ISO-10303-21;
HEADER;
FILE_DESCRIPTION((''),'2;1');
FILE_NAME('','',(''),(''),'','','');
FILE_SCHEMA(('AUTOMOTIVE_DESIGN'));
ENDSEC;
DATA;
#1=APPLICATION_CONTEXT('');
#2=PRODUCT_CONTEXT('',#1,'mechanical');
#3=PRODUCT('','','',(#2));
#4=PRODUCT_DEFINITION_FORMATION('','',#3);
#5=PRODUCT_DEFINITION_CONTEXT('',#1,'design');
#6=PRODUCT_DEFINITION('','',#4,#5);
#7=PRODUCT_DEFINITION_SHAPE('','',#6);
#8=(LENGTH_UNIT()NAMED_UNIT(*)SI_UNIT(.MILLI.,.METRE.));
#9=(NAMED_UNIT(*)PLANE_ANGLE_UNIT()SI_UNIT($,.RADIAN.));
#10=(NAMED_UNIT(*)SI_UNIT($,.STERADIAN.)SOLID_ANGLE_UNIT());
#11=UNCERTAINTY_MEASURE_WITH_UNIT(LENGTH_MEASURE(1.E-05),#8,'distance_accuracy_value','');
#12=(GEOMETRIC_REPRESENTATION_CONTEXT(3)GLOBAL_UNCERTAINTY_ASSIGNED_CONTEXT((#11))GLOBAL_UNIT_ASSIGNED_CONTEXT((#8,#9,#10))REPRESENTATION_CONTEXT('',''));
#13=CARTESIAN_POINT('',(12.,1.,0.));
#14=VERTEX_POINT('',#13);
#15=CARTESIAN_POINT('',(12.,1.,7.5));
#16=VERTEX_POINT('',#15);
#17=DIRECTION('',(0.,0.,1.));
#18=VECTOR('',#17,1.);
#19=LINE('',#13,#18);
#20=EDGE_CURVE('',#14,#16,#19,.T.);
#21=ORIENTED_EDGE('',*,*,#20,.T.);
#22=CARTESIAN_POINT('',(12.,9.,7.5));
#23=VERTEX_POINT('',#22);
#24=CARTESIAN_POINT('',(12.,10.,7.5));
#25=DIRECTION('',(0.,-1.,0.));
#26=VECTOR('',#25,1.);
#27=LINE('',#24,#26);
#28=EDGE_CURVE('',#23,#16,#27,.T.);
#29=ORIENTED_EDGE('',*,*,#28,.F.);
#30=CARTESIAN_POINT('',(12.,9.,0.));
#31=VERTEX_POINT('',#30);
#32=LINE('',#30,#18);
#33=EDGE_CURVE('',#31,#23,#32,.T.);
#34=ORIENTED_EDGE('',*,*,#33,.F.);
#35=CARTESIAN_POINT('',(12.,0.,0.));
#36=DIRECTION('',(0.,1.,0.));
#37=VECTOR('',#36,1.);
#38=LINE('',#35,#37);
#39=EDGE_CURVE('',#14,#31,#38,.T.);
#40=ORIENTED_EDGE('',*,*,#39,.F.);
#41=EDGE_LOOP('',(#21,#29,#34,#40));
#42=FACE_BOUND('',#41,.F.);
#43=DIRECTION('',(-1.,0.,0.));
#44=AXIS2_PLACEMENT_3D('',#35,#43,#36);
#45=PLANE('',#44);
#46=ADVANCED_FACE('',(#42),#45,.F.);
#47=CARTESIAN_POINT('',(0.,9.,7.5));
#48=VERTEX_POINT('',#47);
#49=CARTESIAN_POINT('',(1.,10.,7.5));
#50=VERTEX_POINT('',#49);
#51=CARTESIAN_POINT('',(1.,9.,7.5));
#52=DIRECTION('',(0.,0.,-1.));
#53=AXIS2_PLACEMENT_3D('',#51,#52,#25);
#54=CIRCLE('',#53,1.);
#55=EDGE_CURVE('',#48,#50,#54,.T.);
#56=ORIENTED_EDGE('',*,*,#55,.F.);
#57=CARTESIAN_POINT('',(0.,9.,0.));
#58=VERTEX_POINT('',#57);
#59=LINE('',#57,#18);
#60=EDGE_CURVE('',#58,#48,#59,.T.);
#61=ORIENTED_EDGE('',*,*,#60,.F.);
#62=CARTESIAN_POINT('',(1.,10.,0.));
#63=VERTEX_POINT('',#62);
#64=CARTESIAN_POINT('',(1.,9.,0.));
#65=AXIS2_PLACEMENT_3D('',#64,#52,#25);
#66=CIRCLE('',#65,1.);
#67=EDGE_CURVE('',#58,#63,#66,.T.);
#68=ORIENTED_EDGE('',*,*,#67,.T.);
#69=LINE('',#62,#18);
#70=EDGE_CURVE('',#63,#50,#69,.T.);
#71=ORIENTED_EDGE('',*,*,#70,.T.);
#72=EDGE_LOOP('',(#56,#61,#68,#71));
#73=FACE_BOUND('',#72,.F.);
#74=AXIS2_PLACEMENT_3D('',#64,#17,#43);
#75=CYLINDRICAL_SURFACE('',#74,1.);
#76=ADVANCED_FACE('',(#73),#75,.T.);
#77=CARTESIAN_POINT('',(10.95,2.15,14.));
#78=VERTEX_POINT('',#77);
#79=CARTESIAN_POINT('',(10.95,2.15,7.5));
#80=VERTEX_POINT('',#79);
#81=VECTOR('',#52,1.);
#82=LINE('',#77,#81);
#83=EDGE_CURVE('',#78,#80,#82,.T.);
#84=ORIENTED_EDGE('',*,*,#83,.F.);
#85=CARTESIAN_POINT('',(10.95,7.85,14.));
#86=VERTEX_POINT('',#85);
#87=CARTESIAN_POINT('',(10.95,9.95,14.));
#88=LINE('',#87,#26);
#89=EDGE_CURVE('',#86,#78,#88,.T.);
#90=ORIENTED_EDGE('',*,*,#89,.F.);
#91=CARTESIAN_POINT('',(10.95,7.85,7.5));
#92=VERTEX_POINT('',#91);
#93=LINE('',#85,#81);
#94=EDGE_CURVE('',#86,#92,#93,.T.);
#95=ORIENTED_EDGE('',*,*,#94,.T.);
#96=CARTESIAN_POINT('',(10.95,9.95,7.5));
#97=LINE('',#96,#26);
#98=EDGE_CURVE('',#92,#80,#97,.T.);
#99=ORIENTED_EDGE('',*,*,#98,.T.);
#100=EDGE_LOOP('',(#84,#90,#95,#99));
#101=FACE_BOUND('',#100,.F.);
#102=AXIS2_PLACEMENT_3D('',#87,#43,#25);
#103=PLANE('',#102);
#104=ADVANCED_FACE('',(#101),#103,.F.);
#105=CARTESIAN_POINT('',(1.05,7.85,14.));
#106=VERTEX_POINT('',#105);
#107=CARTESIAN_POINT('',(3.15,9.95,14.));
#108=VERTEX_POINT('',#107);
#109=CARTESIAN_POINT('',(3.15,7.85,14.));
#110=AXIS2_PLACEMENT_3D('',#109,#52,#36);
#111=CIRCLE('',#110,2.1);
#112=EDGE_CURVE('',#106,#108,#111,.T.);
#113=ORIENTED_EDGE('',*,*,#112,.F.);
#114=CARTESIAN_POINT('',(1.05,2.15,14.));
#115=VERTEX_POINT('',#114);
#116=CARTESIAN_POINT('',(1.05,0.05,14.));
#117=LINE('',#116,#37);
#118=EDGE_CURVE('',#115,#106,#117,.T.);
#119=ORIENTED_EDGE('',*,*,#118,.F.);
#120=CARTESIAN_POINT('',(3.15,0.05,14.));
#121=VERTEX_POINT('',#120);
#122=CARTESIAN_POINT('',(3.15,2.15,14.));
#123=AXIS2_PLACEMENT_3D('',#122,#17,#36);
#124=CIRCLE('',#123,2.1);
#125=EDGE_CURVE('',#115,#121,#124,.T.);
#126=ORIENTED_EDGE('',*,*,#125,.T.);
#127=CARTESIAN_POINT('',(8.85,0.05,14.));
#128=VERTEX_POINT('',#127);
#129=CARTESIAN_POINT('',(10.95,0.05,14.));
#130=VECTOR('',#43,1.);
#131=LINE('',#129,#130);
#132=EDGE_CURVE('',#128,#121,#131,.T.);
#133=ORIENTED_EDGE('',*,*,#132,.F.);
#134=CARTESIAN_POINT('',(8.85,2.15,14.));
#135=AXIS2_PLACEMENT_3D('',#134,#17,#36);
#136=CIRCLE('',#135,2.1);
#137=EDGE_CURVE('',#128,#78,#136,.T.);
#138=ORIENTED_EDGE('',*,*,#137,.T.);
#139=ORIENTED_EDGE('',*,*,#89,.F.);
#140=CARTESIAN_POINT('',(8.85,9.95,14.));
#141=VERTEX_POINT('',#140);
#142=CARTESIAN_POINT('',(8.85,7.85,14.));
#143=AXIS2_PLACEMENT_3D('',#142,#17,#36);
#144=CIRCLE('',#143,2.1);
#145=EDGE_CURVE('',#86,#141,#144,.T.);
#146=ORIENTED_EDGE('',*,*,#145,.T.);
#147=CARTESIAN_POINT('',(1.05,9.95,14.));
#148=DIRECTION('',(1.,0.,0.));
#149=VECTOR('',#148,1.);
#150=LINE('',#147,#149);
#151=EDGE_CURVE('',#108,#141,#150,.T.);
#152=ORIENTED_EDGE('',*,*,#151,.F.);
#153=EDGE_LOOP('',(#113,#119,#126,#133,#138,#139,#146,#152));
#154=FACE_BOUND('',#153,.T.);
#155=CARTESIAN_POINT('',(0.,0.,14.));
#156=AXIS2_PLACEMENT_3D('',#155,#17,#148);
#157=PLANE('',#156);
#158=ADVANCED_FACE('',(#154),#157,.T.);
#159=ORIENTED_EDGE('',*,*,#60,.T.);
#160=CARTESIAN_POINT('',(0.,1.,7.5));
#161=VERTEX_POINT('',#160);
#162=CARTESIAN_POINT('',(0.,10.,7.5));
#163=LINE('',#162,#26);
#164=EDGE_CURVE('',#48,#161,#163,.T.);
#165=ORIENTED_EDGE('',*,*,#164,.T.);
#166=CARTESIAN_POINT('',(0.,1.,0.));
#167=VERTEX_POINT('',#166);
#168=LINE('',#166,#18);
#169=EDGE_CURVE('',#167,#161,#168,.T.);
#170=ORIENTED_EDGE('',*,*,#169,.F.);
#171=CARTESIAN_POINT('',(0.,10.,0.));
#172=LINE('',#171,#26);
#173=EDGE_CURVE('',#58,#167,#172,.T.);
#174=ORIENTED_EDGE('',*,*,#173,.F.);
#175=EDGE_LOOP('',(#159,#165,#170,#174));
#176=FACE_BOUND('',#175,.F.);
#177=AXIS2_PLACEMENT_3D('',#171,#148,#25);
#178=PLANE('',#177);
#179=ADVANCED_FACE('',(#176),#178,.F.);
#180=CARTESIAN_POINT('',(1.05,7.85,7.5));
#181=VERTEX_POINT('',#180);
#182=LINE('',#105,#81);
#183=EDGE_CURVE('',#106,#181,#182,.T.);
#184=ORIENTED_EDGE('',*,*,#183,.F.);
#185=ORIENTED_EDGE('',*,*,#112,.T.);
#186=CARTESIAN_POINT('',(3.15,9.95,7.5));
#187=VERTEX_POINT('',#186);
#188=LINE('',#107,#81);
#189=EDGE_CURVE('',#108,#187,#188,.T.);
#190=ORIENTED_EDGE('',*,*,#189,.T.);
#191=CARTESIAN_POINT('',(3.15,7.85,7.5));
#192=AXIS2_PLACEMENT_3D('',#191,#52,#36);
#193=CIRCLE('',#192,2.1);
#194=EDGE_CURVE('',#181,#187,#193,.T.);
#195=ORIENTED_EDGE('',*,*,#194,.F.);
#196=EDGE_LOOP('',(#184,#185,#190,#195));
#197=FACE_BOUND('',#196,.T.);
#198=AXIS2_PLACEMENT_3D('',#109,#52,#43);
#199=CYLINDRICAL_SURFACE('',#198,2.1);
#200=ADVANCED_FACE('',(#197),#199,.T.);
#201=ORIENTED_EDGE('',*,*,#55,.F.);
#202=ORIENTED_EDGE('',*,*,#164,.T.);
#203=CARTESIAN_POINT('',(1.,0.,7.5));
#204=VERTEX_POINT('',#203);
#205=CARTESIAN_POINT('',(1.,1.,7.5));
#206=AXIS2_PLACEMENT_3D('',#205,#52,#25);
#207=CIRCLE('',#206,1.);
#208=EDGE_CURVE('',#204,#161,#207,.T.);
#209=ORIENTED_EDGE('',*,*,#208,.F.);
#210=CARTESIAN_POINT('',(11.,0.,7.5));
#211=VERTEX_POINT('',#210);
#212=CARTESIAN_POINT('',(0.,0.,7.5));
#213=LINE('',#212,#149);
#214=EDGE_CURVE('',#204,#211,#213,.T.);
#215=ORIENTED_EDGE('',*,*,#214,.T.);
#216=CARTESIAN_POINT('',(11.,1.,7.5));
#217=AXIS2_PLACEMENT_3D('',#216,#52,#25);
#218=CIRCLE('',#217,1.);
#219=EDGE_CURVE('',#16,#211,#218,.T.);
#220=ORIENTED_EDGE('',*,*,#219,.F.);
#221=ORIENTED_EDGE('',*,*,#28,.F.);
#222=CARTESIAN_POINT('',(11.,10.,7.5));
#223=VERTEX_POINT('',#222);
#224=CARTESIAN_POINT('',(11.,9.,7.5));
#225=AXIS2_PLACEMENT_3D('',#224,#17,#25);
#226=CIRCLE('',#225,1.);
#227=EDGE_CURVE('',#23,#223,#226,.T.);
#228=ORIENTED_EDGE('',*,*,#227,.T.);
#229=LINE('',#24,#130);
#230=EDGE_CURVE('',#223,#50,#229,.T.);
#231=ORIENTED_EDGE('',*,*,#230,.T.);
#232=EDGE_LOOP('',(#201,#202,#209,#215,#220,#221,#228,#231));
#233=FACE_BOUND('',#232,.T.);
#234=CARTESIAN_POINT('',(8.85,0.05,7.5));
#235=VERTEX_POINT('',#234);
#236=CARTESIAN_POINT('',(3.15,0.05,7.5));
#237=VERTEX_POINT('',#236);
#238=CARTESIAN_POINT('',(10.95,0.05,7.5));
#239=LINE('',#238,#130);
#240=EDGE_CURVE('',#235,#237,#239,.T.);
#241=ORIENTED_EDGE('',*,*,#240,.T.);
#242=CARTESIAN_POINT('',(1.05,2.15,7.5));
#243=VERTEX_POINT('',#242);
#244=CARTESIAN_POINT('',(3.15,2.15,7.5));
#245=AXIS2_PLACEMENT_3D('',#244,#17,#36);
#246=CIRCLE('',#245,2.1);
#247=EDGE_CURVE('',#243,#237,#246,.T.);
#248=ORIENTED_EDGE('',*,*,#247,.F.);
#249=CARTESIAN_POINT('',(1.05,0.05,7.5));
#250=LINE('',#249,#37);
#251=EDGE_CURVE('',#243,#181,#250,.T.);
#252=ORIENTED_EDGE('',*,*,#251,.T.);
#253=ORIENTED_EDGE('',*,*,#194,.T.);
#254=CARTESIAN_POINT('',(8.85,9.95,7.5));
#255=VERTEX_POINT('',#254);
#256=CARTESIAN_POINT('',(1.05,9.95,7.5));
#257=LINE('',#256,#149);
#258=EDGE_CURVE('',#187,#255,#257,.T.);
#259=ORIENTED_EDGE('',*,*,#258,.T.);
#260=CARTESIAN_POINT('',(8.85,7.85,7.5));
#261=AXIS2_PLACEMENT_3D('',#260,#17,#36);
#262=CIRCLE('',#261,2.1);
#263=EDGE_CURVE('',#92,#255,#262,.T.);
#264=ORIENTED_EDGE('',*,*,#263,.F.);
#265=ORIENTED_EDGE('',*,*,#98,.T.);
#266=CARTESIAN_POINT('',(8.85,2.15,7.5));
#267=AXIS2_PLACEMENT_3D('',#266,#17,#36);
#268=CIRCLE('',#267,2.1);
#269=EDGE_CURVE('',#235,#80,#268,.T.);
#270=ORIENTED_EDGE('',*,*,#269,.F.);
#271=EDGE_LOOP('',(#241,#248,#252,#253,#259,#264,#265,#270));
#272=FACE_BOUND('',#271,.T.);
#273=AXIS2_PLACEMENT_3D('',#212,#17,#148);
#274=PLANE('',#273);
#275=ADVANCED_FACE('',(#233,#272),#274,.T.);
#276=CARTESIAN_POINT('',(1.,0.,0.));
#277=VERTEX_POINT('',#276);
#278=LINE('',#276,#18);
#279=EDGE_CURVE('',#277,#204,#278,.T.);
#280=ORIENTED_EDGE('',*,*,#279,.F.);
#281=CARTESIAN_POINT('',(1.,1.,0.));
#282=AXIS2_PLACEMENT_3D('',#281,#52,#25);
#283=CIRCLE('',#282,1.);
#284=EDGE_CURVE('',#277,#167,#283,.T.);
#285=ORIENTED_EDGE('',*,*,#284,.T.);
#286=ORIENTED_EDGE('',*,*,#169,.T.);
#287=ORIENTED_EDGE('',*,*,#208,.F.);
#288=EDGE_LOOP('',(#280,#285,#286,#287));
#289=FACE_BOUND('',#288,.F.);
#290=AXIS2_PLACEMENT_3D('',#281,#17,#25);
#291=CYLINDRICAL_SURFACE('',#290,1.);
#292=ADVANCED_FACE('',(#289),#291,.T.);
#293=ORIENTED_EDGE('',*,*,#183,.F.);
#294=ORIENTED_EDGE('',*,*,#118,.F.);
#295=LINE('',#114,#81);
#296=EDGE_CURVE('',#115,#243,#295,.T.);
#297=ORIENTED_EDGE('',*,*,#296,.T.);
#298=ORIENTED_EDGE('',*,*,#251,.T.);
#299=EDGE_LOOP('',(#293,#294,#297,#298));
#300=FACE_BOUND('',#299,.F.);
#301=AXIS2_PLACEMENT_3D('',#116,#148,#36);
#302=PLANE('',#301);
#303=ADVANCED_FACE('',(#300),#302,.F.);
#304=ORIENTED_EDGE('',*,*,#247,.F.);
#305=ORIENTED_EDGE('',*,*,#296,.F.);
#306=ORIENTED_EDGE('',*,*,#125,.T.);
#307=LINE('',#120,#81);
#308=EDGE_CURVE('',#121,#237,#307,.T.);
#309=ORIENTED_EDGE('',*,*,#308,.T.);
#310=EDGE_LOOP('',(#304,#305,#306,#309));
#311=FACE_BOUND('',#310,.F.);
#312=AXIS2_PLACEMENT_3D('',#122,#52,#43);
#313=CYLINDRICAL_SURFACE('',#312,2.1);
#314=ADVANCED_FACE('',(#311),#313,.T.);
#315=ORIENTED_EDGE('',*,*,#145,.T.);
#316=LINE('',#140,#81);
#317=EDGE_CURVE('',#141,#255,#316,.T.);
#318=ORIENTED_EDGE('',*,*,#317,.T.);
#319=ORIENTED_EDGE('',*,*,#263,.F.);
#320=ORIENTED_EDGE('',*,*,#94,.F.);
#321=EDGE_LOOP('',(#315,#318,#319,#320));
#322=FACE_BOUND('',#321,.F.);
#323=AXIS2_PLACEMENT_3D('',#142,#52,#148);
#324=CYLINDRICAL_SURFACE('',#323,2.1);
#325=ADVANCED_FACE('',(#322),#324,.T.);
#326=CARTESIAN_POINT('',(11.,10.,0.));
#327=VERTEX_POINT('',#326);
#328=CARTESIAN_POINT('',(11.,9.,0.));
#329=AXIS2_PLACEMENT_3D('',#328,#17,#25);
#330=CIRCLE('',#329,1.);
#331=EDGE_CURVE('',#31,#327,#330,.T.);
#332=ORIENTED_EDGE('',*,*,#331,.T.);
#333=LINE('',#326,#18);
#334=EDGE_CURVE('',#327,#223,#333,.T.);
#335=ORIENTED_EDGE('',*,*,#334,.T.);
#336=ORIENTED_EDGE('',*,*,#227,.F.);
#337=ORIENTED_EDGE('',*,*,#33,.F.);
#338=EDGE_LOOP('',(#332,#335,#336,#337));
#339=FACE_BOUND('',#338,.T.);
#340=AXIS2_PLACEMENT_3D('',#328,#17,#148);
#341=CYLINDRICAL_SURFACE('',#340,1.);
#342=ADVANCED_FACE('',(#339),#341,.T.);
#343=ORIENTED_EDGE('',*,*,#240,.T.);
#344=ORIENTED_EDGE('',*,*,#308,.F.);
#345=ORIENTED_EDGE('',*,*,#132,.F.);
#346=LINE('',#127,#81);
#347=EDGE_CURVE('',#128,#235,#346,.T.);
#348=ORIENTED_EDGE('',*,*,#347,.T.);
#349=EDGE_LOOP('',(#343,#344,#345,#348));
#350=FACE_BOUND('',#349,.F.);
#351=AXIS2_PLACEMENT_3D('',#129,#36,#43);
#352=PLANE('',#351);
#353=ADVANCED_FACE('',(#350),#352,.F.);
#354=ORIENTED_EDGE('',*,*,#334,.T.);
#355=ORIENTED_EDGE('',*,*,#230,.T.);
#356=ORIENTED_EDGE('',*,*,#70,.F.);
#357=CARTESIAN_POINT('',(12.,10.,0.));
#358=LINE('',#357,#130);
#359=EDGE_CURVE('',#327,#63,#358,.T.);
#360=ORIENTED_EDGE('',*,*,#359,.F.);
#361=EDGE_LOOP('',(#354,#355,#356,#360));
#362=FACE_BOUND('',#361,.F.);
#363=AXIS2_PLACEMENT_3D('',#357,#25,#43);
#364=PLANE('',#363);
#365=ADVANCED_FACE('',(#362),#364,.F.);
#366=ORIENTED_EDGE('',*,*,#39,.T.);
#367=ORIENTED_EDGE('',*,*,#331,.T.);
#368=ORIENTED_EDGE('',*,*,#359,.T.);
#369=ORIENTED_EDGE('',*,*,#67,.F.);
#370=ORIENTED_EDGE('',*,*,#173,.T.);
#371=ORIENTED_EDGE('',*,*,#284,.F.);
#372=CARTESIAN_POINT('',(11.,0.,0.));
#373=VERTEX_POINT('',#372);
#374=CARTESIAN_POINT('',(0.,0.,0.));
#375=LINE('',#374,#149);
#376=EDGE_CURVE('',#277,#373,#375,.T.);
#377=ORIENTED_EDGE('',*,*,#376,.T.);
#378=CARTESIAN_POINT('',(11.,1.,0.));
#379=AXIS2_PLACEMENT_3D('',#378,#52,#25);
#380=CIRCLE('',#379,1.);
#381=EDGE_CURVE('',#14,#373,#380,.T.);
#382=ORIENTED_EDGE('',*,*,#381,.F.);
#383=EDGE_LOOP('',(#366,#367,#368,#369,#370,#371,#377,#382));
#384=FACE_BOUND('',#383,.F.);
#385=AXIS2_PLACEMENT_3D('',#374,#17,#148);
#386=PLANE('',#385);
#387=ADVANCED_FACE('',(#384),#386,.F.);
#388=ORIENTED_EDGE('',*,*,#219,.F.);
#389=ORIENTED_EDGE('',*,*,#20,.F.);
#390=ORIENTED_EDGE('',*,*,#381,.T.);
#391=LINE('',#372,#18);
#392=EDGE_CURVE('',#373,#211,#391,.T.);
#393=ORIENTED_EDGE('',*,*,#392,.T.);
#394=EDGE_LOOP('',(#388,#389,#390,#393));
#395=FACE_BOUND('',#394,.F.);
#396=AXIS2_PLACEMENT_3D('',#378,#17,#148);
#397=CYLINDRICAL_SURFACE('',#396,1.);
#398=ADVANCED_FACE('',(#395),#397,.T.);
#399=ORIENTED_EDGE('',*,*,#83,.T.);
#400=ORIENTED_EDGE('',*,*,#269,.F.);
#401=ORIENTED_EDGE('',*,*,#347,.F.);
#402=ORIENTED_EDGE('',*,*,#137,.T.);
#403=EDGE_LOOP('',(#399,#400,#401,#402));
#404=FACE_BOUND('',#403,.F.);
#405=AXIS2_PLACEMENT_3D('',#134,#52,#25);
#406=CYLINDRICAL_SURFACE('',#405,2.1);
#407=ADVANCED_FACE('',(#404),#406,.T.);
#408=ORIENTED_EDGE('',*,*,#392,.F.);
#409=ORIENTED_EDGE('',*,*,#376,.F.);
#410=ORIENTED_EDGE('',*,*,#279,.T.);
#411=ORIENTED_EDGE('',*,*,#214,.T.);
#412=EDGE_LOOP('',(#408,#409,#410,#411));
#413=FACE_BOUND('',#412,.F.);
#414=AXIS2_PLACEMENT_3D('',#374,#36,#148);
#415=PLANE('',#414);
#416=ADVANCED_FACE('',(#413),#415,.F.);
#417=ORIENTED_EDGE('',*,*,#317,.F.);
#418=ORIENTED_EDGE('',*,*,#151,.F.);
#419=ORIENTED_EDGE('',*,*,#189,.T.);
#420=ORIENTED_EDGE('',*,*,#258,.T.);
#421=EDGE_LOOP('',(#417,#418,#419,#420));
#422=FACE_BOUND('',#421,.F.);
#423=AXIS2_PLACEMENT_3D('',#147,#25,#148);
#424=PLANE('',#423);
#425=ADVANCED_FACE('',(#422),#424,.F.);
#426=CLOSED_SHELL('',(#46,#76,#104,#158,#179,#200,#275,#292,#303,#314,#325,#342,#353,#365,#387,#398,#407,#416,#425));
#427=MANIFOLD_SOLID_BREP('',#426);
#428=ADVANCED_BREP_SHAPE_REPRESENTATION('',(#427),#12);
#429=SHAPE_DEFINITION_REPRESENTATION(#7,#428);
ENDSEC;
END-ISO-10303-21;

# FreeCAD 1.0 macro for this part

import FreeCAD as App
import Part
import Sketcher
from FreeCAD import Vector


def edges_at(feature, points):
    """Names of the edges that pass closest to the given points."""
    edges = feature.Shape.Edges
    near = lambda p: min(range(len(edges)), key=lambda i: edges[i].distToShape(Part.Vertex(*p))[0])
    return sorted({f"Edge{near(p) + 1}" for p in points})

doc = App.newDocument("Part")
body = doc.addObject("PartDesign::Body", "Body")

# Sketch on XY plane
sketch1 = doc.addObject("Sketcher::SketchObject", "Sketch")
body.addObject(sketch1)
sketch1.AttachmentSupport = (doc.XY_Plane, [""])
sketch1.MapMode = "FlatFace"
sketch1.addGeometry(Part.LineSegment(Vector(0, 10, 0), Vector(0, 0, 0)), False)
sketch1.addGeometry(Part.LineSegment(Vector(0, 0, 0), Vector(12, 0, 0)), False)
sketch1.addGeometry(Part.LineSegment(Vector(12, 0, 0), Vector(12, 10, 0)), False)
sketch1.addGeometry(Part.LineSegment(Vector(12, 10, 0), Vector(0, 10, 0)), False)
sketch1.addConstraint(Sketcher.Constraint("Coincident", 0, 2, 1, 1))
sketch1.addConstraint(Sketcher.Constraint("Coincident", 1, 2, 2, 1))
sketch1.addConstraint(Sketcher.Constraint("Coincident", 2, 2, 3, 1))
sketch1.addConstraint(Sketcher.Constraint("Coincident", 3, 2, 0, 1))
sketch1.addConstraint(Sketcher.Constraint("Vertical", 0))
sketch1.addConstraint(Sketcher.Constraint("Horizontal", 1))
sketch1.addConstraint(Sketcher.Constraint("Vertical", 2))
sketch1.addConstraint(Sketcher.Constraint("Horizontal", 3))
sketch1.addConstraint(Sketcher.Constraint("Coincident", 0, 2, -1, 1))
sketch1.addConstraint(Sketcher.Constraint("DistanceX", 1, 1, 1, 2, 12.0))
sketch1.addConstraint(Sketcher.Constraint("DistanceY", 0, 2, 0, 1, 10.0))
pad1 = doc.addObject("PartDesign::Pad", "Pad")
body.addObject(pad1)
pad1.Profile = sketch1
pad1.Length = 14

# Sketch on XY plane
sketch2 = doc.addObject("Sketcher::SketchObject", "Sketch001")
body.addObject(sketch2)
sketch2.AttachmentSupport = (doc.XY_Plane, [""])
sketch2.MapMode = "FlatFace"
sketch2.AttachmentOffset = App.Placement(Vector(0, 0, 14), App.Rotation())
sketch2.addGeometry(Part.LineSegment(Vector(12, 0, 0), Vector(12, 10, 0)), False)
sketch2.addGeometry(Part.LineSegment(Vector(12, 10, 0), Vector(0, 10, 0)), False)
sketch2.addGeometry(Part.LineSegment(Vector(0, 10, 0), Vector(0, 0, 0)), False)
sketch2.addGeometry(Part.LineSegment(Vector(0, 0, 0), Vector(12, 0, 0)), False)
sketch2.addGeometry(Part.LineSegment(Vector(1, 0, 0), Vector(1, 10, 0)), False)
sketch2.addGeometry(Part.LineSegment(Vector(1, 10, 0), Vector(11, 10, 0)), False)
sketch2.addGeometry(Part.LineSegment(Vector(11, 10, 0), Vector(11, 0, 0)), False)
sketch2.addGeometry(Part.LineSegment(Vector(11, 0, 0), Vector(1, 0, 0)), False)
sketch2.addConstraint(Sketcher.Constraint("Coincident", 0, 2, 1, 1))
sketch2.addConstraint(Sketcher.Constraint("Coincident", 1, 2, 2, 1))
sketch2.addConstraint(Sketcher.Constraint("Coincident", 2, 2, 3, 1))
sketch2.addConstraint(Sketcher.Constraint("Coincident", 3, 2, 0, 1))
sketch2.addConstraint(Sketcher.Constraint("Coincident", 4, 2, 5, 1))
sketch2.addConstraint(Sketcher.Constraint("Coincident", 5, 2, 6, 1))
sketch2.addConstraint(Sketcher.Constraint("Coincident", 6, 2, 7, 1))
sketch2.addConstraint(Sketcher.Constraint("Coincident", 7, 2, 4, 1))
sketch2.addConstraint(Sketcher.Constraint("Vertical", 0))
sketch2.addConstraint(Sketcher.Constraint("Horizontal", 1))
sketch2.addConstraint(Sketcher.Constraint("Vertical", 2))
sketch2.addConstraint(Sketcher.Constraint("Horizontal", 3))
sketch2.addConstraint(Sketcher.Constraint("Vertical", 4))
sketch2.addConstraint(Sketcher.Constraint("Horizontal", 5))
sketch2.addConstraint(Sketcher.Constraint("Vertical", 6))
sketch2.addConstraint(Sketcher.Constraint("Horizontal", 7))
sketch2.addConstraint(Sketcher.Constraint("Coincident", 2, 2, -1, 1))
sketch2.addConstraint(Sketcher.Constraint("Equal", 7, 4))
sketch2.addConstraint(Sketcher.Constraint("DistanceX", 5, 1, 5, 2, 9.9))
sketch2.addConstraint(Sketcher.Constraint("DistanceX", 1, 2, 1, 1, 12.0))
sketch2.addConstraint(Sketcher.Constraint("DistanceY", 0, 1, 0, 2, 10.0))
sketch2.addConstraint(Sketcher.Constraint("DistanceX", -1, 1, 4, 2, 1.05))
sketch2.addConstraint(Sketcher.Constraint("DistanceY", -1, 1, 4, 2, 9.95))
pocket1 = doc.addObject("PartDesign::Pocket", "Pocket")
body.addObject(pocket1)
pocket1.Profile = sketch2
pocket1.Length = 6.5
doc.recompute()

fillet = doc.addObject("PartDesign::Fillet", "Fillet")
body.addObject(fillet)
fillet.Base = (pocket1, edges_at(pocket1, [
    (1.05, 0.05, 10.75),
    (10.95, 0.05, 10.75),
    (10.95, 9.95, 10.75),
    (1.05, 9.95, 10.75),
]))
fillet.Radius = 2.1
doc.recompute()

fillet2 = doc.addObject("PartDesign::Fillet", "Fillet001")
body.addObject(fillet2)
fillet2.Base = (fillet, edges_at(fillet, [
    (0, 0, 3.75),
    (0, 10, 3.75),
    (12, 0, 3.75),
    (12, 10, 3.75),
]))
fillet2.Radius = 1

doc.recompute()
